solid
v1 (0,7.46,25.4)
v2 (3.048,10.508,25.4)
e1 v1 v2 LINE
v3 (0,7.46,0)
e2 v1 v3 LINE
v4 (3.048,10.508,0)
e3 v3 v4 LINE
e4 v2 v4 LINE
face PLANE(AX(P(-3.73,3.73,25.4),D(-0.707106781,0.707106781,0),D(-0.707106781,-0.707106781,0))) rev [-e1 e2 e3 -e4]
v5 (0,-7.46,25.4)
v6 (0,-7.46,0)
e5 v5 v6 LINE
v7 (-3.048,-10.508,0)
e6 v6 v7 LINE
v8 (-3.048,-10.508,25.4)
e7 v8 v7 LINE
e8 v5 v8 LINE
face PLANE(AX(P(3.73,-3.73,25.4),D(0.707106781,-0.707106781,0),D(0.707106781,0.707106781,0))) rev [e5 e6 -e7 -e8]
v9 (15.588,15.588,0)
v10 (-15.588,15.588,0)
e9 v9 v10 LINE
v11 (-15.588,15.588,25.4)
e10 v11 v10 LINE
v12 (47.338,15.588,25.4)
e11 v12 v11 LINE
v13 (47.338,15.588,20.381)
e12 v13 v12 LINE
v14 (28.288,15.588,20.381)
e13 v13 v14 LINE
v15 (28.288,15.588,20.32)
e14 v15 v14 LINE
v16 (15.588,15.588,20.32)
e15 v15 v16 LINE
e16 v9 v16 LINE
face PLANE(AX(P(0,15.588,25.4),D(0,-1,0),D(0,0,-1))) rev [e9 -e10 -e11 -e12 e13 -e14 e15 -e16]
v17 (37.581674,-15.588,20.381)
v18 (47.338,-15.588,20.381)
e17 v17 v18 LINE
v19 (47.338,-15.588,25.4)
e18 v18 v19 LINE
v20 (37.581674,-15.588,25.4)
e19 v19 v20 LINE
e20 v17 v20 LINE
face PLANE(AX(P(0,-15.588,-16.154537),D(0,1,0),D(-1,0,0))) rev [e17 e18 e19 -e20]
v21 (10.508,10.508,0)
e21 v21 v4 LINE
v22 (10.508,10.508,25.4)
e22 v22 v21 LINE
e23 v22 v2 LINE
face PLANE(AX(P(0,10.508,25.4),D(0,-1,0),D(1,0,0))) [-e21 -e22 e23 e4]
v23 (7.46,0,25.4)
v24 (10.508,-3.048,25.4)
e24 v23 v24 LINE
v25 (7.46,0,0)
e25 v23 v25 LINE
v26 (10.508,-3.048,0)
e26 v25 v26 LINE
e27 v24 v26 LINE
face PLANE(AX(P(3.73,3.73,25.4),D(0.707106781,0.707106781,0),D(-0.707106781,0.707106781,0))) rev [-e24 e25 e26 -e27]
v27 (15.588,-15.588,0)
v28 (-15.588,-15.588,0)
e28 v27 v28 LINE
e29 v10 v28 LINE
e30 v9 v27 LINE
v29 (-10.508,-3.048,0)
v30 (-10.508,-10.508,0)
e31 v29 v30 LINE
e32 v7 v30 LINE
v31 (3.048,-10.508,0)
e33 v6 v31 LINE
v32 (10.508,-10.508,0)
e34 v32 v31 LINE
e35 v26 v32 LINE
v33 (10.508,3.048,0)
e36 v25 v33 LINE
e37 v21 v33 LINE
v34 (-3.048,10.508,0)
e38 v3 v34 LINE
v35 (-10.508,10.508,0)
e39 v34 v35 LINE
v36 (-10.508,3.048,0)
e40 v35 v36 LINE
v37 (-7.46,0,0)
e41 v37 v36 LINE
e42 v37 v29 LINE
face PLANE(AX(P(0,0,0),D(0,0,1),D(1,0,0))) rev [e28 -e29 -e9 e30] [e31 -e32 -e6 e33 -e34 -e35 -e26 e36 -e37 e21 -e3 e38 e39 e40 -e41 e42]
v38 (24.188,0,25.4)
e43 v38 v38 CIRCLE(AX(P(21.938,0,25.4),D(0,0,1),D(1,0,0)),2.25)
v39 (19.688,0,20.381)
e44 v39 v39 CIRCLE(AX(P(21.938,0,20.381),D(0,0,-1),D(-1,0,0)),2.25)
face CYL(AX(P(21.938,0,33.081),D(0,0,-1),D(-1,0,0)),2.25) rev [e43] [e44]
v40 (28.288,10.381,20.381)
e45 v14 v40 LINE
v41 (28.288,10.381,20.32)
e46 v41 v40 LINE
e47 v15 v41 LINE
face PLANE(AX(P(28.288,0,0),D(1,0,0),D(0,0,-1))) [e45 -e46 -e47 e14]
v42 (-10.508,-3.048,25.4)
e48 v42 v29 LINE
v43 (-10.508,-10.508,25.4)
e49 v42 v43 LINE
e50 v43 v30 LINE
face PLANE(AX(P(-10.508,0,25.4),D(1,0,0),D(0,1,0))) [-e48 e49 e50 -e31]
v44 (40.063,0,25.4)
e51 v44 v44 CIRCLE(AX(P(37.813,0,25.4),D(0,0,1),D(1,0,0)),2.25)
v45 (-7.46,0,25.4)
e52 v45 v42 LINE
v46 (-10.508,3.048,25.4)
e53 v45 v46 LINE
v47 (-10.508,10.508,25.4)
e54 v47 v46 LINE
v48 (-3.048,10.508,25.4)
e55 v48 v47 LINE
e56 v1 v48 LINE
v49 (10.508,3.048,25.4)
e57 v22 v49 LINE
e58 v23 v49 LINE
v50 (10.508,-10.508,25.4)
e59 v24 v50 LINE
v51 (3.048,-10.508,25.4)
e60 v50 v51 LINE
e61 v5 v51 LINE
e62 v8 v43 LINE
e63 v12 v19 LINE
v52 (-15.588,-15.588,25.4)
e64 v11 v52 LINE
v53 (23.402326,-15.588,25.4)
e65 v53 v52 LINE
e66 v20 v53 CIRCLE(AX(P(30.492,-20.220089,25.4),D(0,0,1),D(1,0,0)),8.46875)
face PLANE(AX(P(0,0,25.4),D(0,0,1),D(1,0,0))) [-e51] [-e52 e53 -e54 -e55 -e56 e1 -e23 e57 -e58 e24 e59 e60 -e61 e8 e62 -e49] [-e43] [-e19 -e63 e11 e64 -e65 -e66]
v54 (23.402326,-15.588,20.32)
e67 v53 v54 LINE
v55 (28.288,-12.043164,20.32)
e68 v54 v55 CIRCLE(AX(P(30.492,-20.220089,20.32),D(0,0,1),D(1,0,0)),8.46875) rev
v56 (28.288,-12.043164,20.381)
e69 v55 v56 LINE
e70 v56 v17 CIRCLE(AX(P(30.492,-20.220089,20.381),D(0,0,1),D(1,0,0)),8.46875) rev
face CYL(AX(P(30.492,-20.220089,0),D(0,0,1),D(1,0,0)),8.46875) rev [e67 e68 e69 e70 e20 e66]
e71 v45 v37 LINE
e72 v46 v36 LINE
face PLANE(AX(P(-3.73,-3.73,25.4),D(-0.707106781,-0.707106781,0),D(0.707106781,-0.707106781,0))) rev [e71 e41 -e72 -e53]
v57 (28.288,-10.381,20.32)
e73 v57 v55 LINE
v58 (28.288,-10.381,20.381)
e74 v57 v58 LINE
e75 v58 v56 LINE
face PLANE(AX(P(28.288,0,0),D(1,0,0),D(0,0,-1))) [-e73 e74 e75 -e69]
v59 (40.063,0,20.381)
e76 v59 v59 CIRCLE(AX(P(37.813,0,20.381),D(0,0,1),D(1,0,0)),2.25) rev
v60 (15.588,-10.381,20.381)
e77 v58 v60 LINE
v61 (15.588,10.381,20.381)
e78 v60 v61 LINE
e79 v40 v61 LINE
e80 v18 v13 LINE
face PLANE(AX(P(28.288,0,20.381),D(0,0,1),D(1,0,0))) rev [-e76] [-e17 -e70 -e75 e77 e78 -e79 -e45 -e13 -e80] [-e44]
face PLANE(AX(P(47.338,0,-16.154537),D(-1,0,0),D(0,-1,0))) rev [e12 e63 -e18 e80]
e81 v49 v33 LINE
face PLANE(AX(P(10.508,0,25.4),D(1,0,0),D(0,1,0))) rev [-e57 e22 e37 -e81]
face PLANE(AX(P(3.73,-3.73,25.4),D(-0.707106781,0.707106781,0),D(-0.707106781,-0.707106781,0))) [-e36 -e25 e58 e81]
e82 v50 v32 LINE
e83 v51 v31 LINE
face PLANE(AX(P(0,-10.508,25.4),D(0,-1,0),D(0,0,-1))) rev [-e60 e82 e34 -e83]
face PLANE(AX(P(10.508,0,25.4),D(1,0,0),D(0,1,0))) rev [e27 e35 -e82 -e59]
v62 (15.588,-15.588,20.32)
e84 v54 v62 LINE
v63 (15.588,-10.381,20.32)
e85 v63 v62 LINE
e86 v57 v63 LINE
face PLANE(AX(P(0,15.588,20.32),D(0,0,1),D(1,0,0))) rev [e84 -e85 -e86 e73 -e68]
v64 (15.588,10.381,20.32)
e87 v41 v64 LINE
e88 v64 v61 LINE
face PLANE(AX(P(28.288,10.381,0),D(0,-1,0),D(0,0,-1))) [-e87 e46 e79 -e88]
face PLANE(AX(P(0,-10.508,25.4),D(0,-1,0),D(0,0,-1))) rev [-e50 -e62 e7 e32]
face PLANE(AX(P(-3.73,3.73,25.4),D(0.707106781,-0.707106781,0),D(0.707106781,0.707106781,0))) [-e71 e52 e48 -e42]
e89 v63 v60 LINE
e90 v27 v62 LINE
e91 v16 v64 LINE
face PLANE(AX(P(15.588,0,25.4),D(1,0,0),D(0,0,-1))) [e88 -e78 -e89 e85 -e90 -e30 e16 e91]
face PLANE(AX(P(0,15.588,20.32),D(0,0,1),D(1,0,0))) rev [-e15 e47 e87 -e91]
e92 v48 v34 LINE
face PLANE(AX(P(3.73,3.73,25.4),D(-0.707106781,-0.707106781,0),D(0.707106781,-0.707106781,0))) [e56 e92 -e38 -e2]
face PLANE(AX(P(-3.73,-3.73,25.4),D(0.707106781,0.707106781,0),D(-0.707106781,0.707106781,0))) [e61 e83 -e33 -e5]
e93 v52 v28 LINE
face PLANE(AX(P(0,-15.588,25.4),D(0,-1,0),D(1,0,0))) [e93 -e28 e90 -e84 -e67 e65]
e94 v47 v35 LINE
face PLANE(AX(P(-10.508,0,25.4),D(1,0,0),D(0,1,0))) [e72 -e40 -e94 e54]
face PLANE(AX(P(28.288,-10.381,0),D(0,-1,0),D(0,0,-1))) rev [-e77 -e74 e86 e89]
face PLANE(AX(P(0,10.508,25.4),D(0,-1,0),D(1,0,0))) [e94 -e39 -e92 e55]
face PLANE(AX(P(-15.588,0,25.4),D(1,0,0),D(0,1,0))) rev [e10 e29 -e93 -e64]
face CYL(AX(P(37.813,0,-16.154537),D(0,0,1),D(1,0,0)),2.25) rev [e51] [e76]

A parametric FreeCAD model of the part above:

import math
import FreeCAD as App
import Part
import Sketcher

V = App.Vector
Q = App.Units.Quantity


def add_polygon(sketch, points):
    """Adds a closed chain of lines whose ends are joined by coincident constraints."""
    first, n = sketch.GeometryCount, len(points)
    for a, b in zip(points, points[1:] + points[:1]):
        sketch.addGeometry(Part.LineSegment(App.Vector(*a, 0), App.Vector(*b, 0)), False)
    for i in range(n):
        sketch.addConstraint(Sketcher.Constraint("Coincident", first + i, 2, first + (i + 1) % n, 1))

doc = App.newDocument("Part")
body = doc.addObject("PartDesign::Body", "Body")

sketch1 = doc.addObject("Sketcher::SketchObject", "Sketch")
body.addObject(sketch1)
sketch1.AttachmentSupport = (doc.XY_Plane, [""])
sketch1.MapMode = "FlatFace"
add_polygon(sketch1, [(-15.6, 15.6), (-15.6, -15.6), (15.6, -15.6), (15.6, 15.6)])
add_polygon(sketch1, [(3, -10.5), (0, -7.5), (-3, -10.5), (-10.5, -10.5), (-10.5, -3), (-7.5, 0), (-10.5, 3), (-10.5, 10.5), (-3, 10.5), (0, 7.5), (3, 10.5), (10.5, 10.5), (10.5, 3), (7.5, 0), (10.5, -3), (10.5, -10.5)])
sketch1.addConstraint([
    Sketcher.Constraint("Vertical", 0),
    Sketcher.Constraint("Horizontal", 1),
    Sketcher.Constraint("Vertical", 2),
    Sketcher.Constraint("Horizontal", 3),
    Sketcher.Constraint("Horizontal", 6),
    Sketcher.Constraint("Vertical", 7),
    Sketcher.Constraint("Vertical", 10),
    Sketcher.Constraint("Horizontal", 11),
    Sketcher.Constraint("Horizontal", 14),
    Sketcher.Constraint("Vertical", 15),
    Sketcher.Constraint("Vertical", 18),
    Sketcher.Constraint("Horizontal", 19),
    Sketcher.Constraint("Symmetric", 0, 2, 2, 2, -1, 1),
    Sketcher.Constraint("Symmetric", 4, 2, 12, 2, -1, 1),
    Sketcher.Constraint("Symmetric", 5, 2, 13, 2, -1, 1),
    Sketcher.Constraint("Symmetric", 7, 2, 15, 2, -1, 1),
    Sketcher.Constraint("Symmetric", 8, 2, 16, 2, -1, 1),
    Sketcher.Constraint("Symmetric", 9, 2, 17, 2, -1, 1),
    Sketcher.Constraint("Symmetric", 11, 2, 19, 2, -1, 1),
    Sketcher.Constraint("Symmetric", 11, 2, 13, 2, -2),
    Sketcher.Constraint("Symmetric", 9, 2, 15, 2, -2),
    Sketcher.Constraint("PointOnObject", 4, 2, -2),
    Sketcher.Constraint("PointOnObject", 8, 2, -1),
    Sketcher.Constraint("Perpendicular", 4, 5),
    Sketcher.Constraint("Parallel", 5, 8),
    Sketcher.Constraint("Equal", 3, 0),
    Sketcher.Constraint("Equal", 19, 7),
    Sketcher.Constraint("Equal", 5, 8),
    Sketcher.Constraint("DistanceY", 0, 2, 5, 2, Q("0.2 in")),
    Sketcher.Constraint("DistanceX", 5, 2, -1, 1, Q("0.12 in")),
    Sketcher.Constraint("DistanceX", 1, 1, 1, 2, Q("31.176 mm")),
])
pad1 = doc.addObject("PartDesign::Pad", "Pad")
body.addObject(pad1)
pad1.Profile = sketch1
pad1.Length = Q("1 in")

sketch2 = doc.addObject("Sketcher::SketchObject", "Sketch001")
body.addObject(sketch2)
sketch2.AttachmentSupport = (doc.YZ_Plane, [""])
sketch2.MapMode = "FlatFace"
sketch2.AttachmentOffset = App.Placement(V(0, 0, 15.588), App.Rotation())
add_polygon(sketch2, [(10, 20), (10, 0), (16, 0), (16, 25), (-16, 25), (-16, 0), (-10, 0), (-10, 20)])
sketch2.addConstraint([
    Sketcher.Constraint("Vertical", 0),
    Sketcher.Constraint("Horizontal", 1),
    Sketcher.Constraint("Vertical", 2),
    Sketcher.Constraint("Horizontal", 3),
    Sketcher.Constraint("Vertical", 4),
    Sketcher.Constraint("Horizontal", 5),
    Sketcher.Constraint("Vertical", 6),
    Sketcher.Constraint("Horizontal", 7),
    Sketcher.Constraint("Symmetric", 1, 2, 4, 2, -1, 1),
    Sketcher.Constraint("Symmetric", 0, 2, 5, 2, -2),
    Sketcher.Constraint("DistanceY", 2, 1, 2, 2, Q("1 in")),
    Sketcher.Constraint("DistanceX", 1, 1, 1, 2, Q("0.205 in")),
    Sketcher.Constraint("DistanceX", 3, 2, 3, 1, Q("31.176 mm")),
    Sketcher.Constraint("DistanceY", 0, 2, 0, 1, Q("20.381 mm")),
])
pad2 = doc.addObject("PartDesign::Pad", "Pad001")
body.addObject(pad2)
pad2.Profile = sketch2
pad2.Length = Q("0.5 in")

sketch3 = doc.addObject("Sketcher::SketchObject", "Sketch002")
body.addObject(sketch3)
sketch3.AttachmentSupport = (doc.XY_Plane, [""])
sketch3.MapMode = "FlatFace"
sketch3.AttachmentOffset = App.Placement(V(0, 0, 20.381), App.Rotation())
sketch3.addGeometry(Part.Circle(V(21.9, 0, 0), V(0, 0, 1), 2.2), False)
sketch3.addConstraint([
    Sketcher.Constraint("PointOnObject", 0, 3, -1),
    Sketcher.Constraint("Diameter", 0, Q("4.5 mm")),
    Sketcher.Constraint("DistanceX", -1, 1, 0, 3, Q("21.938 mm")),
])
pocket1 = doc.addObject("PartDesign::Pocket", "Pocket")
body.addObject(pocket1)
pocket1.Profile = sketch3
pocket1.Length = Q("0.5 in")
pocket1.Reversed = True

sketch4 = doc.addObject("Sketcher::SketchObject", "Sketch003")
body.addObject(sketch4)
sketch4.AttachmentSupport = (doc.XY_Plane, [""])
sketch4.MapMode = "FlatFace"
sketch4.AttachmentOffset = App.Placement(V(0, 0, 1 * 25.4), App.Rotation())
sketch4.addGeometry(Part.Circle(V(30, -20, 0), V(0, 0, 1), 8), False)
sketch4.addConstraint([
    Sketcher.Constraint("Diameter", 0, Q("16.9375 mm")),
    Sketcher.Constraint("DistanceX", -1, 1, 0, 3, Q("30.492 mm")),
    Sketcher.Constraint("DistanceY", 0, 3, -1, 1, Q("20.220089 mm")),
])
pocket2 = doc.addObject("PartDesign::Pocket", "Pocket001")
body.addObject(pocket2)
pocket2.Profile = sketch4
pocket2.Type = "ThroughAll"

sketch5 = doc.addObject("Sketcher::SketchObject", "Sketch004")
body.addObject(sketch5)
sketch5.AttachmentSupport = (doc.XZ_Plane, [""])
sketch5.MapMode = "FlatFace"
sketch5.AttachmentOffset = App.Placement(V(0, 0, 15.588), App.Rotation())
add_polygon(sketch5, [(28, 20), (16, 20), (16, 0), (28, 0)])
sketch5.addConstraint([
    Sketcher.Constraint("Horizontal", 0),
    Sketcher.Constraint("Vertical", 1),
    Sketcher.Constraint("Horizontal", 2),
    Sketcher.Constraint("Vertical", 3),
    Sketcher.Constraint("PointOnObject", 1, 2, -1),
    Sketcher.Constraint("DistanceX", 0, 2, 0, 1, Q("0.5 in")),
    Sketcher.Constraint("DistanceY", 1, 2, 1, 1, Q("0.8 in")),
    Sketcher.Constraint("DistanceX", -1, 1, 0, 2, Q("15.588 mm")),
])
pocket3 = doc.addObject("PartDesign::Pocket", "Pocket002")
body.addObject(pocket3)
pocket3.Profile = sketch5
pocket3.Type = "ThroughAll"

sketch6 = doc.addObject("Sketcher::SketchObject", "Sketch005")
body.addObject(sketch6)
sketch6.AttachmentSupport = (doc.XY_Plane, [""])
sketch6.MapMode = "FlatFace"
sketch6.AttachmentOffset = App.Placement(V(0, 0, 1 * 25.4), App.Rotation())
sketch6.addGeometry([
    Part.LineSegment(V(47.3, 15.6, 0), V(28.3, 15.6, 0)),
    Part.LineSegment(V(28.3, 15.6, 0), V(28.3, -12, 0)),
    Part.ArcOfCircle(Part.Circle(V(30.5, -20.2, 0), V(0, 0, 1), 8.5), math.radians(33), math.radians(105)),
    Part.LineSegment(V(37.6, -15.6, 0), V(47.3, -15.6, 0)),
    Part.LineSegment(V(47.3, -15.6, 0), V(47.3, 15.6, 0)),
    Part.Circle(V(37.8, 0, 0), V(0, 0, 1), 2.2),
], False)
sketch6.addConstraint([
    Sketcher.Constraint("Coincident", 0, 2, 1, 1),
    Sketcher.Constraint("Coincident", 1, 2, 2, 2),
    Sketcher.Constraint("Coincident", 2, 1, 3, 1),
    Sketcher.Constraint("Coincident", 3, 2, 4, 1),
    Sketcher.Constraint("Coincident", 4, 2, 0, 1),
    Sketcher.Constraint("Horizontal", 0),
    Sketcher.Constraint("Vertical", 1),
    Sketcher.Constraint("Horizontal", 3),
    Sketcher.Constraint("Vertical", 4),
    Sketcher.Constraint("PointOnObject", 5, 3, -1),
    Sketcher.Constraint("DistanceX", 0, 2, 0, 1, Q("0.75 in")),
    Sketcher.Constraint("Diameter", 5, Q("4.5 mm")),
    Sketcher.Constraint("Radius", 2, Q("8.46875 mm")),
    Sketcher.Constraint("DistanceX", 0, 2, 5, 3, Q("0.375 in")),
    Sketcher.Constraint("DistanceY", 4, 1, 4, 2, Q("31.176 mm")),
    Sketcher.Constraint("DistanceX", -1, 1, 2, 3, Q("30.492 mm")),
    Sketcher.Constraint("DistanceX", -1, 1, 5, 3, Q("37.813 mm")),
    Sketcher.Constraint("DistanceY", -1, 1, 0, 2, Q("15.588 mm")),
    Sketcher.Constraint("DistanceX", 3, 1, 3, 2, Q("9.756326 mm")),
])
pad3 = doc.addObject("PartDesign::Pad", "Pad002")
body.addObject(pad3)
pad3.Profile = sketch6
pad3.Length = 5.019
pad3.Reversed = True

doc.recompute()
